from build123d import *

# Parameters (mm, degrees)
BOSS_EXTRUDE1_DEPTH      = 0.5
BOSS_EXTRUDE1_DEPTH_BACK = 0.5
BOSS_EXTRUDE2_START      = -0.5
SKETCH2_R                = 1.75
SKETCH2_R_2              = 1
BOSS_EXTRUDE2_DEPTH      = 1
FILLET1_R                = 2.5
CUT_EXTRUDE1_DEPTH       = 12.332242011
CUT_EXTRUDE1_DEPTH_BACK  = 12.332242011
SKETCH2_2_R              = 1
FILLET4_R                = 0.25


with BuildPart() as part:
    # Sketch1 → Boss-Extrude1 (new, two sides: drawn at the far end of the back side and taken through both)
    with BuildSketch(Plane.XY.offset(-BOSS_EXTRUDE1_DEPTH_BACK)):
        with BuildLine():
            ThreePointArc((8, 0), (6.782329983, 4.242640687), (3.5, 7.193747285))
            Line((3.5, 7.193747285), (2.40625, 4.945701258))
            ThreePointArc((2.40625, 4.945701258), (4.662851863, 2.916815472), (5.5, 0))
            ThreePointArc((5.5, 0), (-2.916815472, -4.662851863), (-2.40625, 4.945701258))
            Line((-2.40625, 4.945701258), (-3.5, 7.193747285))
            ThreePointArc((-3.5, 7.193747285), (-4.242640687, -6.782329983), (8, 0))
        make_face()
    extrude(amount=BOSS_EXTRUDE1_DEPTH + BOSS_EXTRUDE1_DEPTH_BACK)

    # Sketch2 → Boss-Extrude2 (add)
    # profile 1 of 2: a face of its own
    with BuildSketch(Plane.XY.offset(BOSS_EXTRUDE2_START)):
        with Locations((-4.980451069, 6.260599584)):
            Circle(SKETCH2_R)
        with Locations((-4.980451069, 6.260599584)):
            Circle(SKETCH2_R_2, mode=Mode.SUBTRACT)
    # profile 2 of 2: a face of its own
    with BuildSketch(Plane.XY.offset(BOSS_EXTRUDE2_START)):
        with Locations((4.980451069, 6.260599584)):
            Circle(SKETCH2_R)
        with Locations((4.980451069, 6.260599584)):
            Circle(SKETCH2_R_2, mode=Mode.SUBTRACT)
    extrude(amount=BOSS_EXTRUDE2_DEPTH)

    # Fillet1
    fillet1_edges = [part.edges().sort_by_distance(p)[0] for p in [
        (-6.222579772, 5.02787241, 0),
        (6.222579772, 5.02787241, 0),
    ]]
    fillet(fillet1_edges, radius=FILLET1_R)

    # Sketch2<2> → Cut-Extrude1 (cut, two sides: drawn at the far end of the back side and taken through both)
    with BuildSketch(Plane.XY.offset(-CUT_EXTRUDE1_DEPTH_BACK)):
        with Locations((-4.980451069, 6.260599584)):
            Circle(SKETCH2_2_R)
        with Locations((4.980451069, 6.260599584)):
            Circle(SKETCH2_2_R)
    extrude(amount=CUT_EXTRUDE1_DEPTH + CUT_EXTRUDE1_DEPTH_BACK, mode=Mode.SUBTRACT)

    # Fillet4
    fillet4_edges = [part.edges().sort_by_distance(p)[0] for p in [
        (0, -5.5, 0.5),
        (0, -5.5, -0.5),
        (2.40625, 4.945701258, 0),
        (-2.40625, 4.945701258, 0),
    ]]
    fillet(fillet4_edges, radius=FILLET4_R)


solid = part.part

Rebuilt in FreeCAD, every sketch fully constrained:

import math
import FreeCAD as App
import Part
import Sketcher
from FreeCAD import Vector


def edges_at(feature, points):
    """Names of the edges that pass closest to the given points."""
    edges = feature.Shape.Edges
    near = lambda p: min(range(len(edges)), key=lambda i: edges[i].distToShape(Part.Vertex(*p))[0])
    return sorted({f"Edge{near(p) + 1}" for p in points})

doc = App.newDocument("Part")
body = doc.addObject("PartDesign::Body", "Body")

# Sketch on XY plane
sketch1 = body.newObject("Sketcher::SketchObject", "Sketch")
sketch1.AttachmentSupport = (doc.getObject("XY_Plane"), [""])
sketch1.MapMode = "FlatFace"
sketch1.addGeometry([
    Part.ArcOfCircle(Part.Circle(Vector(0, 0, 0), Vector(0, 0, 1), 8), math.radians(0), math.radians(64)),  # 0
    Part.LineSegment(Vector(3.5, 7.2, 0), Vector(2.4, 4.9, 0)),  # 1
    Part.ArcOfCircle(Part.Circle(Vector(0, 0, 0), Vector(0, 0, 1), 5.5), math.radians(0), math.radians(64)),  # 2
    Part.ArcOfCircle(Part.Circle(Vector(0, 0, 0), Vector(0, 0, 1), 5.5), math.radians(116), math.radians(360)),  # 3
    Part.LineSegment(Vector(-2.4, 4.9, 0), Vector(-3.5, 7.2, 0)),  # 4
    Part.ArcOfCircle(Part.Circle(Vector(0, 0, 0), Vector(0, 0, 1), 8), math.radians(116), math.radians(360)),  # 5
], False)
sketch1.addConstraint([
    Sketcher.Constraint("Coincident", 0, 2, 1, 1),
    Sketcher.Constraint("Coincident", 1, 2, 2, 2),
    Sketcher.Constraint("Tangent", 2, 1, 3, 2),
    Sketcher.Constraint("Coincident", 3, 1, 4, 1),
    Sketcher.Constraint("Coincident", 4, 2, 5, 1),
    Sketcher.Constraint("Tangent", 5, 2, 0, 1),
    Sketcher.Constraint("Coincident", 0, 3, -1, 1),
    Sketcher.Constraint("Coincident", 2, 3, -1, 1),
    Sketcher.Constraint("Equal", 2, 3),
    Sketcher.Constraint("Equal", 0, 5),
    Sketcher.Constraint("PointOnObject", 2, 1, -1),
    Sketcher.Constraint("PointOnObject", 5, 2, -1),
    Sketcher.Constraint("Horizontal", 1, 2, 3, 1),
    Sketcher.Constraint("Horizontal", 0, 2, 4, 2),
    Sketcher.Constraint("Radius", 0, 8.0),
    Sketcher.Constraint("Radius", 2, 5.5),
    Sketcher.Constraint("DistanceX", 4, 2, 0, 2, 7.0),
    Sketcher.Constraint("DistanceY", -1, 1, 1, 2, 4.945701),
])
pad1 = body.newObject("PartDesign::Pad", "Pad")
pad1.Profile = sketch1
pad1.Type = "TwoLengths"
pad1.Length = 0.5
pad1.Length2 = 0.5

# Sketch on XY plane
sketch2 = body.newObject("Sketcher::SketchObject", "Sketch001")
sketch2.AttachmentSupport = (doc.getObject("XY_Plane"), [""])
sketch2.MapMode = "FlatFace"
sketch2.AttachmentOffset = App.Placement(Vector(0, 0, -0.5), App.Rotation())
sketch2.addGeometry([
    Part.Circle(Vector(-5, 6.3, 0), Vector(0, 0, 1), 1.8),
    Part.Circle(Vector(-5, 6.3, 0), Vector(0, 0, 1), 1),
    Part.Circle(Vector(5, 6.3, 0), Vector(0, 0, 1), 1.8),
    Part.Circle(Vector(5, 6.3, 0), Vector(0, 0, 1), 1),
], False)
sketch2.addConstraint([
    Sketcher.Constraint("Coincident", 1, 3, 0, 3),
    Sketcher.Constraint("Coincident", 3, 3, 2, 3),
    Sketcher.Constraint("Equal", 0, 2),
    Sketcher.Constraint("Equal", 1, 3),
    Sketcher.Constraint("Symmetric", 0, 3, 2, 3, -2),
    Sketcher.Constraint("Diameter", 1, 2.0),
    Sketcher.Constraint("Diameter", 0, 3.5),
    Sketcher.Constraint("DistanceY", -1, 1, 0, 3, 6.2606),
    Sketcher.Constraint("DistanceX", 0, 3, -1, 1, 4.980451),
])
pad2 = body.newObject("PartDesign::Pad", "Pad001")
pad2.Profile = sketch2
pad2.Length = 1
doc.recompute()

fillet = body.newObject("PartDesign::Fillet", "Fillet")
fillet.Base = (pad2, edges_at(pad2, [(-6.223, 5.028, 0), (6.223, 5.028, 0)]))
fillet.Radius = 2.5

# Sketch on XY plane
sketch3 = body.newObject("Sketcher::SketchObject", "Sketch002")
sketch3.AttachmentSupport = (doc.getObject("XY_Plane"), [""])
sketch3.MapMode = "FlatFace"
sketch3.addGeometry([
    Part.Circle(Vector(-5, 6.3, 0), Vector(0, 0, 1), 1),
    Part.Circle(Vector(5, 6.3, 0), Vector(0, 0, 1), 1),
], False)
sketch3.addConstraint([
    Sketcher.Constraint("Equal", 0, 1),
    Sketcher.Constraint("Symmetric", 0, 3, 1, 3, -2),
    Sketcher.Constraint("Diameter", 0, 2.0),
    Sketcher.Constraint("DistanceY", -1, 1, 0, 3, 6.2606),
    Sketcher.Constraint("DistanceX", 0, 3, -1, 1, 4.980451),
])
pocket1 = body.newObject("PartDesign::Pocket", "Pocket")
pocket1.Profile = sketch3
pocket1.Type = "ThroughAll"
pocket1.Midplane = True
doc.recompute()

fillet2 = body.newObject("PartDesign::Fillet", "Fillet001")
fillet2.Base = (pocket1, edges_at(pocket1, [
    (-2.917, -4.663, 0.5),
    (-2.917, -4.663, -0.5),
    (2.406, 4.946, 0),
    (-2.406, 4.946, 0),
]))
fillet2.Radius = 0.25

doc.recompute()
